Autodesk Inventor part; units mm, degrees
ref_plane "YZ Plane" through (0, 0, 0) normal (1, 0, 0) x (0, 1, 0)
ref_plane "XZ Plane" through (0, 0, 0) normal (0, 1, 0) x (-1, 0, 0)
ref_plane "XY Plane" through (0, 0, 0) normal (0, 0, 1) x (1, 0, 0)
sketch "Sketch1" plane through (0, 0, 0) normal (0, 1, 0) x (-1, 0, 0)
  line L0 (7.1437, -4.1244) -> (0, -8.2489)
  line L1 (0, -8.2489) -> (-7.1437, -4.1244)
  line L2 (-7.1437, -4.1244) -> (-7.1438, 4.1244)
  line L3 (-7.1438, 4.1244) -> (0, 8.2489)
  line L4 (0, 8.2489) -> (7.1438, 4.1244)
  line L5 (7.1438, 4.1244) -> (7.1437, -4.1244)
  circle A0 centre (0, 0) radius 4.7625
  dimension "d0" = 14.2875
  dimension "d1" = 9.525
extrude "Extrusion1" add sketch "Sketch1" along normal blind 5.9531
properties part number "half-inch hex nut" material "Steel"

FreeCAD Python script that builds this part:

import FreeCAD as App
import Part
import Sketcher
Q = App.Units.Quantity

doc = App.newDocument("Part")
body = doc.addObject("PartDesign::Body", "Body")

# Sketch on XZ plane
sketch1 = doc.addObject("Sketcher::SketchObject", "Sketch")
body.addObject(sketch1)
sketch1.AttachmentSupport = (doc.XZ_Plane, [""])
sketch1.MapMode = "FlatFace"
sketch1.addGeometry([
    Part.LineSegment(App.Vector(0, -8.2489, 0), App.Vector(-7.1437, -4.1244, 0)),  # 0
    Part.LineSegment(App.Vector(-7.1437, -4.1244, 0), App.Vector(-7.1438, 4.1244, 0)),  # 1
    Part.LineSegment(App.Vector(-7.1438, 4.1244, 0), App.Vector(0, 8.2489, 0)),  # 2
    Part.LineSegment(App.Vector(0, 8.2489, 0), App.Vector(7.1438, 4.1244, 0)),  # 3
    Part.LineSegment(App.Vector(7.1438, 4.1244, 0), App.Vector(7.1437, -4.1244, 0)),  # 4
    Part.LineSegment(App.Vector(7.1437, -4.1244, 0), App.Vector(0, -8.2489, 0)),  # 5
    Part.Circle(App.Vector(0, 0, 0), App.Vector(0, 0, 1), 4.7625),  # 6
], False)
sketch1.addConstraint([
    Sketcher.Constraint("Coincident", 0, 2, 1, 1),
    Sketcher.Constraint("Coincident", 1, 2, 2, 1),
    Sketcher.Constraint("Coincident", 2, 2, 3, 1),
    Sketcher.Constraint("Coincident", 3, 2, 4, 1),
    Sketcher.Constraint("Coincident", 4, 2, 5, 1),
    Sketcher.Constraint("Coincident", 5, 2, 0, 1),
    Sketcher.Constraint("Vertical", 1),
    Sketcher.Constraint("Vertical", 4),
    Sketcher.Constraint("Coincident", 6, 3, -1, 1),
    Sketcher.Constraint("Symmetric", 0, 2, 3, 2, -1, 1),
    Sketcher.Constraint("Symmetric", 2, 2, 5, 2, -1, 1),
    Sketcher.Constraint("PointOnObject", 2, 2, -2),
    Sketcher.Constraint("Parallel", 2, 5),
    Sketcher.Constraint("Horizontal", 1, 2, 3, 2),
    Sketcher.Constraint("Diameter", 6, Q("0.375 in")),
    Sketcher.Constraint("Angle", 0, Q("149.9995 deg")),
    Sketcher.Constraint("DistanceX", 1, 2, 3, 2, Q("0.5625 in")),
    Sketcher.Constraint("DistanceY", 1, 1, 1, 2, Q("8.2488 mm")),
])
pad1 = doc.addObject("PartDesign::Pad", "Pad")
body.addObject(pad1)
pad1.Profile = sketch1
pad1.Length = Q("0.234374 in")
pad1.Reversed = True

doc.recompute()
